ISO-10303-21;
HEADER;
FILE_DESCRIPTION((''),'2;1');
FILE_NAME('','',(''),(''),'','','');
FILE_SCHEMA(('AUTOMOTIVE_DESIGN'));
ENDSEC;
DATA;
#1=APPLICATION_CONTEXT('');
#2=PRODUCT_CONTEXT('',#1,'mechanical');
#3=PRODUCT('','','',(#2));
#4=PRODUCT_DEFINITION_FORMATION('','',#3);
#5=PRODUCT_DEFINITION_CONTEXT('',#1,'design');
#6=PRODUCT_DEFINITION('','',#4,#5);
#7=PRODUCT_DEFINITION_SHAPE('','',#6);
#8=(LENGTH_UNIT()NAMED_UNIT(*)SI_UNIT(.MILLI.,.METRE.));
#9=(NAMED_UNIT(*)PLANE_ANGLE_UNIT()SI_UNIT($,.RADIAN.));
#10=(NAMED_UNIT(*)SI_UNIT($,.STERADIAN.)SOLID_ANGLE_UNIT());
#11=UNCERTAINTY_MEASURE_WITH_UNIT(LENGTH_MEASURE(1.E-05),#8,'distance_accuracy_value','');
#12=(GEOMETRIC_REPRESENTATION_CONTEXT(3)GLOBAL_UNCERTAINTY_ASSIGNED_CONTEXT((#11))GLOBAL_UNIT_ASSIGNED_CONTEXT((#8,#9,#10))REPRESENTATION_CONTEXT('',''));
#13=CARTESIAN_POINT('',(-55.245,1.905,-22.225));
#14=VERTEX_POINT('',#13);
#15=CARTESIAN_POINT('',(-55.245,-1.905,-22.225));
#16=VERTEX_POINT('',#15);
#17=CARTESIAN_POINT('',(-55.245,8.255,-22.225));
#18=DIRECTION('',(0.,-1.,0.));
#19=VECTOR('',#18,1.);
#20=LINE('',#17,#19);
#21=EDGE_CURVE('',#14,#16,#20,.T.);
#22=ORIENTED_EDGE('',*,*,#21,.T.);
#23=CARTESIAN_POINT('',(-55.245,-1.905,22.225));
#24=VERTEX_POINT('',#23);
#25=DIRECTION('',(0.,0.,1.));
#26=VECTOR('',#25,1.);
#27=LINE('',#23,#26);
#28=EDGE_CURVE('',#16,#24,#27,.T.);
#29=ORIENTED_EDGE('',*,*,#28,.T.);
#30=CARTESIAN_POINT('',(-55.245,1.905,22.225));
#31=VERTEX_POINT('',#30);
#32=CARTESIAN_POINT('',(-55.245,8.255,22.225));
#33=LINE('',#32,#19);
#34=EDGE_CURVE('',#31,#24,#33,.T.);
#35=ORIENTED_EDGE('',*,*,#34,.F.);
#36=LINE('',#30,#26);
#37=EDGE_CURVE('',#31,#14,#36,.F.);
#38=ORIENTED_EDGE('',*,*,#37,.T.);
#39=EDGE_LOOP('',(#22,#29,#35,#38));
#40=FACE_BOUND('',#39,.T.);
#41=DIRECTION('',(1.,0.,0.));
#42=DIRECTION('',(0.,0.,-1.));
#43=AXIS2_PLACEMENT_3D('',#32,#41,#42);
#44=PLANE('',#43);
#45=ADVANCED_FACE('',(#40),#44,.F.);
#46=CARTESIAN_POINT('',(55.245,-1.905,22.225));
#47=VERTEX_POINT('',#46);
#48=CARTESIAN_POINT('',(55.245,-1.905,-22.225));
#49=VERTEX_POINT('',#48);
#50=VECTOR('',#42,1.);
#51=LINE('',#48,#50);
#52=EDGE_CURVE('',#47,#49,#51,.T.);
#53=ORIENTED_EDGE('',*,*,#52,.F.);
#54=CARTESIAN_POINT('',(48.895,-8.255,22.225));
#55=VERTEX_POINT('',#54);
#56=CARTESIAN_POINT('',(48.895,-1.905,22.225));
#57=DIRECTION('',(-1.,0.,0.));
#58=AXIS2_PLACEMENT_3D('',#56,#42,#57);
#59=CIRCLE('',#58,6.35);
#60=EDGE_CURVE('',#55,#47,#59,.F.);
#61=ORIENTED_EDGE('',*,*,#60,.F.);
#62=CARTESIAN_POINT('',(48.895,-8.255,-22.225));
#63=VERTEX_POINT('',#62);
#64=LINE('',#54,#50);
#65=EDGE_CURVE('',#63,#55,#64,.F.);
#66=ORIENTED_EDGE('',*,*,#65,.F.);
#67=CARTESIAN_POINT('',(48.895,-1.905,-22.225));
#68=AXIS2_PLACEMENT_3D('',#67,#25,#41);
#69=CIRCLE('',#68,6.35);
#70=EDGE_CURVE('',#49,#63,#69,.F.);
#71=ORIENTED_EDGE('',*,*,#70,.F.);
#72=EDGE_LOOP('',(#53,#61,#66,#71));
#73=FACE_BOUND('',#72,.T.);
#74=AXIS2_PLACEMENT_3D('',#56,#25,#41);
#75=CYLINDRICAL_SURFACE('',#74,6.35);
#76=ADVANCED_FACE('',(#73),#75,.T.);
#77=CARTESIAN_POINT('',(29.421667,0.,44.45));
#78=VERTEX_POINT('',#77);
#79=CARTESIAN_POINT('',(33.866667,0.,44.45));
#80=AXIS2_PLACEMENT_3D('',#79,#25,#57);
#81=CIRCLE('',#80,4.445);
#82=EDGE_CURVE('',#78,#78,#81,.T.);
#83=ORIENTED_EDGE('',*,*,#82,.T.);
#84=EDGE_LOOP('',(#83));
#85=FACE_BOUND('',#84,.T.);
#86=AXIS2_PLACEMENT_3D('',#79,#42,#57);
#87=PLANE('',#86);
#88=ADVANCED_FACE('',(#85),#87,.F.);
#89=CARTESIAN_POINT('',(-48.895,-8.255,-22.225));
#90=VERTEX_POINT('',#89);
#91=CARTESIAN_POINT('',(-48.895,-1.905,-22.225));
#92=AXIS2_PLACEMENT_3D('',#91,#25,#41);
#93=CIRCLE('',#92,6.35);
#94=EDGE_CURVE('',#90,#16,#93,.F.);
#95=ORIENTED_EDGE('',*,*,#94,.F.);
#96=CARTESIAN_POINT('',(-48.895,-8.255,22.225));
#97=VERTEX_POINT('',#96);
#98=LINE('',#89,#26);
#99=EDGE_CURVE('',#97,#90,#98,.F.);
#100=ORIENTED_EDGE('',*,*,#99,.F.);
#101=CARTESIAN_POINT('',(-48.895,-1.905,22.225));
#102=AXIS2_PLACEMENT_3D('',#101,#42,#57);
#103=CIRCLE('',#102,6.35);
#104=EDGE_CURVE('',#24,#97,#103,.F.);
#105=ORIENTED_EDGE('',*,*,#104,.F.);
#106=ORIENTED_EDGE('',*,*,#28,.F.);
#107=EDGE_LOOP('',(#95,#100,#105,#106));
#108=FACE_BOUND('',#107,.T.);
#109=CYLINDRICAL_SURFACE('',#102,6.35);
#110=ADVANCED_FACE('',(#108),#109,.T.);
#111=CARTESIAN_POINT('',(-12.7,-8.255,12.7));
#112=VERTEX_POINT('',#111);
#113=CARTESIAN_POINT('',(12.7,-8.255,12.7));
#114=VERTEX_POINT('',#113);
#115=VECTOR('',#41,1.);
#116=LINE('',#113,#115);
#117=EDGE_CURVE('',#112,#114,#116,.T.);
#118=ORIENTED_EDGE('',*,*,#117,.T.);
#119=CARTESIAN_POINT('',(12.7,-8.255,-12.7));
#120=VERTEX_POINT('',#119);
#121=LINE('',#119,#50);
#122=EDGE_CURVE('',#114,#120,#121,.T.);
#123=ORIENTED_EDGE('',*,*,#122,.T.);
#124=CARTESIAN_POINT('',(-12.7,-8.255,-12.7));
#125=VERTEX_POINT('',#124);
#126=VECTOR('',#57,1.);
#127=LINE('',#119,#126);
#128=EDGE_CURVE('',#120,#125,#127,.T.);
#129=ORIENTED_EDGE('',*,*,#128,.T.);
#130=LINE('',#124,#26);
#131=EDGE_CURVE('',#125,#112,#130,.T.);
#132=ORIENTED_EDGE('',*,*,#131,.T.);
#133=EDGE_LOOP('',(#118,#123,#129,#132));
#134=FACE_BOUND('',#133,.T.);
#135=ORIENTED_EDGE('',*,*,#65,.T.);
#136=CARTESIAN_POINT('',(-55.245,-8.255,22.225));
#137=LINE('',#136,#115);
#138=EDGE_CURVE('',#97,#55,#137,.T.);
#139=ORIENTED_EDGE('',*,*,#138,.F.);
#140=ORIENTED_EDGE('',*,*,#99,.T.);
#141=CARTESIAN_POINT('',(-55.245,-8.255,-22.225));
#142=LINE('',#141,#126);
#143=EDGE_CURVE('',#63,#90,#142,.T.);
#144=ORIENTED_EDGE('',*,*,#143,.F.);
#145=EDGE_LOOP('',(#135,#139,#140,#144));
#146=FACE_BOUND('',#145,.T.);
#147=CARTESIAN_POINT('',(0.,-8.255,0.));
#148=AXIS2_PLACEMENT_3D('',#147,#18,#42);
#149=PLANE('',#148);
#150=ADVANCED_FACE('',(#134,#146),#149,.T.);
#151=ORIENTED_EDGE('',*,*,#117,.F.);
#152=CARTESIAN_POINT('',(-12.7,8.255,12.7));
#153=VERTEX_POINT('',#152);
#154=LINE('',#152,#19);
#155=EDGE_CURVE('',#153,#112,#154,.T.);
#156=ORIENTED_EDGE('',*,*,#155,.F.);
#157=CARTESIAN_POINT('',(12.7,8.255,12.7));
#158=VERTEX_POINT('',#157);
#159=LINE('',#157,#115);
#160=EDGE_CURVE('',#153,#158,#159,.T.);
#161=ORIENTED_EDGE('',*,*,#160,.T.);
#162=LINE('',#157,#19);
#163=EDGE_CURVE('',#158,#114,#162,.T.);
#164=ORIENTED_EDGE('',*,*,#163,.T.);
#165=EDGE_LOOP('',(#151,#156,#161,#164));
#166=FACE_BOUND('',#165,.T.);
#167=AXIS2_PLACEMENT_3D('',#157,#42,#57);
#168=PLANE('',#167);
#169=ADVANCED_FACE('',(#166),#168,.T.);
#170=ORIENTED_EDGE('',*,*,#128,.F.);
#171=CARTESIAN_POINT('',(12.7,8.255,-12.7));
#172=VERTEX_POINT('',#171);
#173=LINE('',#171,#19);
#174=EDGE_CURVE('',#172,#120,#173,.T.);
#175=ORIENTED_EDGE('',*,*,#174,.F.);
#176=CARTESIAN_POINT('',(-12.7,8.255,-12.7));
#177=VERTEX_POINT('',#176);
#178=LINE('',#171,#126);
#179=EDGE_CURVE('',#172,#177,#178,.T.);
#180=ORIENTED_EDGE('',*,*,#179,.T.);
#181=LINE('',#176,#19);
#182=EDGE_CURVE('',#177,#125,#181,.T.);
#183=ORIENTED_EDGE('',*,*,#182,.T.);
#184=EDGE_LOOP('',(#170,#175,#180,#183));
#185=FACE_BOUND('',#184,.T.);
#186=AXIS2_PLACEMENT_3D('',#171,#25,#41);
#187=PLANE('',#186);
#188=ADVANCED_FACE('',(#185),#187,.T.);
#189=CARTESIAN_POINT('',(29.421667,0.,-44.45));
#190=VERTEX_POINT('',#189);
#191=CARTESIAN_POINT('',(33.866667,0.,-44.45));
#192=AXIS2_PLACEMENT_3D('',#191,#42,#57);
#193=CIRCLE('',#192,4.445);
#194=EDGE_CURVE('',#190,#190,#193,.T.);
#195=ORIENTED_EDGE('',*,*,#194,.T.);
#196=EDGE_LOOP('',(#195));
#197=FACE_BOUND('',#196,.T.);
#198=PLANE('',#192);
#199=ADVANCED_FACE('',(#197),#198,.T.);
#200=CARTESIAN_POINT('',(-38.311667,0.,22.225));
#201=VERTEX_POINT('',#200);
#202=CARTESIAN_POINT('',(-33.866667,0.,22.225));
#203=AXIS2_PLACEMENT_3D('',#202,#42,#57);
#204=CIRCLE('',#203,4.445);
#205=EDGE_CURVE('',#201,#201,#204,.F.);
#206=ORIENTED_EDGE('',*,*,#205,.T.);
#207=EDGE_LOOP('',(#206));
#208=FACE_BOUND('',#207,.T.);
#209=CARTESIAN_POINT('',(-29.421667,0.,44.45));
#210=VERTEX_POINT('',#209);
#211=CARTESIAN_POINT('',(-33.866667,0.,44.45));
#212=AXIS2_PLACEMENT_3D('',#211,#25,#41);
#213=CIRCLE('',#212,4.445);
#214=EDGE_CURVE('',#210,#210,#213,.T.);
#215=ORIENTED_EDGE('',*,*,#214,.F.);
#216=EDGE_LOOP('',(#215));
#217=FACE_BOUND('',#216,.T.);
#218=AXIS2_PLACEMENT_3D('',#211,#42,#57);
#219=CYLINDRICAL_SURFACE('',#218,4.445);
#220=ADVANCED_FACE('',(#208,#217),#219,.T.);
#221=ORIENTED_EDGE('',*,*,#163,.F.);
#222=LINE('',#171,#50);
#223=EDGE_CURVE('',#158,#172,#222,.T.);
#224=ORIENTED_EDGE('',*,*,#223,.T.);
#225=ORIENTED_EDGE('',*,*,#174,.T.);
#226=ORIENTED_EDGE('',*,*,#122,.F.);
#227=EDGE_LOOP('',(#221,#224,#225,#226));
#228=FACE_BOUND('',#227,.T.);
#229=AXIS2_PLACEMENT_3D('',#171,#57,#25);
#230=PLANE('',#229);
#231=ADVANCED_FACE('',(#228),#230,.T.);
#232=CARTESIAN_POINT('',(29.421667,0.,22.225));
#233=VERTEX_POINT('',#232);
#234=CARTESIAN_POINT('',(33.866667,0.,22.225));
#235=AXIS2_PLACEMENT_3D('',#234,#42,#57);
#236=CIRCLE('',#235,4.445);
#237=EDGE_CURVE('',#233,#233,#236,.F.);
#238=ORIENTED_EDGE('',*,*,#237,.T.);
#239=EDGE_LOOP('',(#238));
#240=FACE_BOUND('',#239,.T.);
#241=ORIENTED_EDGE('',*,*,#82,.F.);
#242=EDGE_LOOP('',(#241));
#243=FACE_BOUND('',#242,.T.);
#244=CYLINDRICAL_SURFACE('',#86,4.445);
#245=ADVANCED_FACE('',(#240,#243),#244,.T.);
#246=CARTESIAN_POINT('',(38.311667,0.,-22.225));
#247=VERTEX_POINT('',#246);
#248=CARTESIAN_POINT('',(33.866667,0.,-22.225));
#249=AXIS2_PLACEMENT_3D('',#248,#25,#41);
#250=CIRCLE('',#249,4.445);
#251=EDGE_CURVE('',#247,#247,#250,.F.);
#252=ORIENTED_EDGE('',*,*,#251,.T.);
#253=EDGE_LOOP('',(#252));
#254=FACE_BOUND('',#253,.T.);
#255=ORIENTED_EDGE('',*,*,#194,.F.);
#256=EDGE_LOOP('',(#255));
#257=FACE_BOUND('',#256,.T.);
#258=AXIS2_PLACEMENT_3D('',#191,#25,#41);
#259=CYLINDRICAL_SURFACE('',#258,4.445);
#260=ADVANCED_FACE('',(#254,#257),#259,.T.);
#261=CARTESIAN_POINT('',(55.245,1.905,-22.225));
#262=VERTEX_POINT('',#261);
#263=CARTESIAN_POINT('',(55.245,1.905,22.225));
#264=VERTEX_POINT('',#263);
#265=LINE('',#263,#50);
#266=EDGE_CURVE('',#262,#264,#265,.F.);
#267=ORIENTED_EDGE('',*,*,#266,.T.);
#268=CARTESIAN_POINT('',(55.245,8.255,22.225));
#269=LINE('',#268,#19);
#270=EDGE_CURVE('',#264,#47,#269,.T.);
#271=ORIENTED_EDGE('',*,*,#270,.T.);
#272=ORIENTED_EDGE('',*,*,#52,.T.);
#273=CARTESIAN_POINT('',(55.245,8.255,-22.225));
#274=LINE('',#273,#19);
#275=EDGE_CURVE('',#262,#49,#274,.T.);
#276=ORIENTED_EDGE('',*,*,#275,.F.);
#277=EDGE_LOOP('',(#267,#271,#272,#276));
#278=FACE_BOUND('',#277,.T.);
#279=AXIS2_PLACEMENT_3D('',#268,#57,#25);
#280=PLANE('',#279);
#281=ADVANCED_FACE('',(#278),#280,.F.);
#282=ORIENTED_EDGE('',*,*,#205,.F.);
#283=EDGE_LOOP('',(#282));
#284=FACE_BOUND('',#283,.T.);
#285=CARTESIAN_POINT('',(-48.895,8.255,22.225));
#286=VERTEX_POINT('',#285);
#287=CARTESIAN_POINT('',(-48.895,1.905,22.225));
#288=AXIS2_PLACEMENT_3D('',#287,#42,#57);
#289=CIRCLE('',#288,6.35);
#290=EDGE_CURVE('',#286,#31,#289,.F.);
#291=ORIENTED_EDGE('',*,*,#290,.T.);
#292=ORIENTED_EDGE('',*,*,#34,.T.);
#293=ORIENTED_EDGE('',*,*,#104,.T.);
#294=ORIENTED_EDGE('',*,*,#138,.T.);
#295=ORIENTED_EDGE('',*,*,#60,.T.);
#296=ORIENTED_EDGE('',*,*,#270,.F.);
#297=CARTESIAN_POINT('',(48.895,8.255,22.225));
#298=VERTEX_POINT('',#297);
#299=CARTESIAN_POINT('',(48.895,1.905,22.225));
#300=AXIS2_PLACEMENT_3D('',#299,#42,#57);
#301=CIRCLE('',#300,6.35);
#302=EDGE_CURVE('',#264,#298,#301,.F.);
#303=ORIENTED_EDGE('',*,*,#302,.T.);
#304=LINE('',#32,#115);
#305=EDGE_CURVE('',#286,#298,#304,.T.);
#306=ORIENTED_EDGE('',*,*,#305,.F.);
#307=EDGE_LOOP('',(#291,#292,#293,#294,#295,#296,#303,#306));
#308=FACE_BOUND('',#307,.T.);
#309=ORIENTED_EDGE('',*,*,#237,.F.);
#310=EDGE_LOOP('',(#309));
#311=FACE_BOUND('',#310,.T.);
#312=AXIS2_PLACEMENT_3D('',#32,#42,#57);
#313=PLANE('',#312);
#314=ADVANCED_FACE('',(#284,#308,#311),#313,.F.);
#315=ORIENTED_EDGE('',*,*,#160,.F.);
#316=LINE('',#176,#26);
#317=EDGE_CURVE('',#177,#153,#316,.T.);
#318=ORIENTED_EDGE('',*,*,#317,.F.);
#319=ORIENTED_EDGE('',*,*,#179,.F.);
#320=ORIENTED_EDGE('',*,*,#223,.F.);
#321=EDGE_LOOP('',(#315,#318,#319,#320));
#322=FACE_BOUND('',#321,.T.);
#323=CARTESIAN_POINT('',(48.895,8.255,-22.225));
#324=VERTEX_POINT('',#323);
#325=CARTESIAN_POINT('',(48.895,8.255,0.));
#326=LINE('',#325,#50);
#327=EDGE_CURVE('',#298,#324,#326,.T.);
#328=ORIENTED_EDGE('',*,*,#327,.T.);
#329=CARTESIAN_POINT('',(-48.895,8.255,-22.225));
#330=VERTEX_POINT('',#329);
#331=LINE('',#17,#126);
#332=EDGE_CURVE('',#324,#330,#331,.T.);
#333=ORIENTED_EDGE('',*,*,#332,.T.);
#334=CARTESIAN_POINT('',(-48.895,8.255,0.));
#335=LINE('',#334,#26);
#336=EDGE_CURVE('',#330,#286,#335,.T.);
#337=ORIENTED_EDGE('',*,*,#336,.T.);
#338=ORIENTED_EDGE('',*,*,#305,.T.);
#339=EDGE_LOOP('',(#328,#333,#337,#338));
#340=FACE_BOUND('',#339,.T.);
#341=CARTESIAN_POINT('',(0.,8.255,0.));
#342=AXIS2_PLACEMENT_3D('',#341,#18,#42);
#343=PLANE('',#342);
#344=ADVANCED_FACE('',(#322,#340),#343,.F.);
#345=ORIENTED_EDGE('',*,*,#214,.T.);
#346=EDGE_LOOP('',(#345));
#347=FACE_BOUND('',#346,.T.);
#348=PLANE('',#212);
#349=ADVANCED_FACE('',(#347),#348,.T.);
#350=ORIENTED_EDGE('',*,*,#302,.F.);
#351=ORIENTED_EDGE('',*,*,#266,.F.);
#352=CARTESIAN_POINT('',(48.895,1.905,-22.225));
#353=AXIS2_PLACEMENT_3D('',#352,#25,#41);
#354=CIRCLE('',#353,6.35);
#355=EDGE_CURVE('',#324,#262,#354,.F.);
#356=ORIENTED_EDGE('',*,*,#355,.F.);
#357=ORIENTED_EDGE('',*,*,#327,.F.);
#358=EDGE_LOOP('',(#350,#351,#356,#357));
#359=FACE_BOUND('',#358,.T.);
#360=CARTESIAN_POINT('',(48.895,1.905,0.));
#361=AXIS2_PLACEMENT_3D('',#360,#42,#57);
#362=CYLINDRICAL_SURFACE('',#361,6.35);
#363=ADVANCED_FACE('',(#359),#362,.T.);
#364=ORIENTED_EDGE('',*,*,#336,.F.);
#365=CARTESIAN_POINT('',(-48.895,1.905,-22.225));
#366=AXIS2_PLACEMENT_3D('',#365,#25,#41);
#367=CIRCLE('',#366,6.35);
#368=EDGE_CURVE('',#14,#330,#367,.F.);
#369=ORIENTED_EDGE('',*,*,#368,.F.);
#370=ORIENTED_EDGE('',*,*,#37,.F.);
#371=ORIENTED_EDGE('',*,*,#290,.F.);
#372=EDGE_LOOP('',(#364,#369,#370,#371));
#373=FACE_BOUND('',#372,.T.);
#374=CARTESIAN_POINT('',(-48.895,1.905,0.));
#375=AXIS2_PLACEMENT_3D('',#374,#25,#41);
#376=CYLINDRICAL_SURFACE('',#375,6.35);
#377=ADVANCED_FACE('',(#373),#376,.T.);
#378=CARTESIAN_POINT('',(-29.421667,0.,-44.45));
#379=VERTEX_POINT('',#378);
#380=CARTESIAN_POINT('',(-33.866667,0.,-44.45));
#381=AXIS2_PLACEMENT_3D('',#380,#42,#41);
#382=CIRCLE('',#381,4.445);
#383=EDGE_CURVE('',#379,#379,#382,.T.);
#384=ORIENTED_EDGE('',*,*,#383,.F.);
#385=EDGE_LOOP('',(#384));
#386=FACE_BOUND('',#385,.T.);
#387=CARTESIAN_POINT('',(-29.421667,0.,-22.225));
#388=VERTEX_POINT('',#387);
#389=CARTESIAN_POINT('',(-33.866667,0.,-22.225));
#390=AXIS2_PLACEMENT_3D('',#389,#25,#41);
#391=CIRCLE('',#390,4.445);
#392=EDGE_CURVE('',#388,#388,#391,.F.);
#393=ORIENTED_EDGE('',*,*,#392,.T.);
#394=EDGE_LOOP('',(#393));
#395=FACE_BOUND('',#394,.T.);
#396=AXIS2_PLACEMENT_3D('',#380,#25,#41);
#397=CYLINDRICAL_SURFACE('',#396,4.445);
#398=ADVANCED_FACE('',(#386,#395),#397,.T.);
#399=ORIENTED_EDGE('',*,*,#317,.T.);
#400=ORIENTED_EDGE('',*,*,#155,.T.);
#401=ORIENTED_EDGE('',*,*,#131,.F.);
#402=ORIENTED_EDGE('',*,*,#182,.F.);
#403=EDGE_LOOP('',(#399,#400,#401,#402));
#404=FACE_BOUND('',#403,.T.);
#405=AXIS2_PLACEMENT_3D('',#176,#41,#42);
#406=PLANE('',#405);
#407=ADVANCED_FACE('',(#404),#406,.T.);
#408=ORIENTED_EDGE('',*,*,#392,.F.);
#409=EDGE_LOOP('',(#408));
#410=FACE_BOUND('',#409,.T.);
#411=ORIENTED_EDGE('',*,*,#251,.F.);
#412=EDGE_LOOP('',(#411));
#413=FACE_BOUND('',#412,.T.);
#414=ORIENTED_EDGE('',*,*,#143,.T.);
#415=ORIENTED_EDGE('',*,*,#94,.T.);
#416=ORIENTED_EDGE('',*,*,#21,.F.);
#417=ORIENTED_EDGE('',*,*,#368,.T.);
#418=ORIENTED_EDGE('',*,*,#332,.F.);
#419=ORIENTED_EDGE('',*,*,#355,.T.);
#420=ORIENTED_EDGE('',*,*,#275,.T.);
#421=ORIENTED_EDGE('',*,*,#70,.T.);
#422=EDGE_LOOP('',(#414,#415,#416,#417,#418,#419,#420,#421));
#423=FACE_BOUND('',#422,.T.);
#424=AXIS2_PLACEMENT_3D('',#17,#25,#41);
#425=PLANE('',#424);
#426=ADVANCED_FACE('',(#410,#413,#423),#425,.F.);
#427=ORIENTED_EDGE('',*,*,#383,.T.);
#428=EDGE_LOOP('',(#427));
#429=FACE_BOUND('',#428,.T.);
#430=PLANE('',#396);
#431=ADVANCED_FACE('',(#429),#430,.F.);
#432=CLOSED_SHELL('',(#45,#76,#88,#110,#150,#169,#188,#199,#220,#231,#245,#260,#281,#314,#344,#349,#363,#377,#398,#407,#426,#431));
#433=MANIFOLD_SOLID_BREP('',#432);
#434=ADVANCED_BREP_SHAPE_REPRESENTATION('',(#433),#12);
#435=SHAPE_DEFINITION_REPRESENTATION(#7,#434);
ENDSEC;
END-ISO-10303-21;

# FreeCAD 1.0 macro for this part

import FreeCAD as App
import Part
import Sketcher
Q = App.Units.Quantity


def edges_at(feature, points):
    """Names of the edges that pass closest to the given points."""
    edges = feature.Shape.Edges
    near = lambda p: min(range(len(edges)), key=lambda i: edges[i].distToShape(Part.Vertex(*p))[0])
    return sorted({f"Edge{near(p) + 1}" for p in points})


def add_polygon(sketch, points):
    """Adds a closed chain of lines whose ends are joined by coincident constraints."""
    first, n = sketch.GeometryCount, len(points)
    for a, b in zip(points, points[1:] + points[:1]):
        sketch.addGeometry(Part.LineSegment(App.Vector(*a, 0), App.Vector(*b, 0)), False)
    for i in range(n):
        sketch.addConstraint(Sketcher.Constraint("Coincident", first + i, 2, first + (i + 1) % n, 1))

doc = App.newDocument("Part")
params = doc.addObject("Spreadsheet::Sheet", "Params")
for row, (alias, value) in enumerate([
    ("sketch1_width", "1 in"),
    ("sketch1_width2", "4.35 in"),
    ("sketch1_height", "1.75 in"),
    ("pad1_length", "0.65 in"),
    ("fillet_radius", "0.25 in"),
    ("sketch2_diameter", "0.35 in"),
    ("pad2_length", "0.875 in"),
    ("sketch3_diameter", "0.35 in"),
    ("pad3_length", "0.875 in"),
], start=1):
    params.set(f"A{row}", alias)
    params.set(f"B{row}", "=" + value)
    params.setAlias(f"B{row}", alias)

body = doc.addObject("PartDesign::Body", "Body")

# Sketch on XZ plane
sketch1 = doc.addObject("Sketcher::SketchObject", "Sketch")
body.addObject(sketch1)
sketch1.AttachmentSupport = (doc.XZ_Plane, [""])
sketch1.MapMode = "FlatFace"
add_polygon(sketch1, [(-55, -22), (-55, 22), (55, 22), (55, -22)])  # lines 0-3
add_polygon(sketch1, [(13, 13), (-13, 13), (-13, -13), (13, -13)])  # lines 4-7
sketch1.addConstraint(Sketcher.Constraint("Vertical", 0))
sketch1.addConstraint(Sketcher.Constraint("Horizontal", 1))
sketch1.addConstraint(Sketcher.Constraint("Vertical", 2))
sketch1.addConstraint(Sketcher.Constraint("Horizontal", 3))
sketch1.addConstraint(Sketcher.Constraint("Horizontal", 4))
sketch1.addConstraint(Sketcher.Constraint("Vertical", 5))
sketch1.addConstraint(Sketcher.Constraint("Horizontal", 6))
sketch1.addConstraint(Sketcher.Constraint("Vertical", 7))
sketch1.addConstraint(Sketcher.Constraint("Symmetric", 0, 2, 2, 2, -1, 1))
sketch1.addConstraint(Sketcher.Constraint("Symmetric", 4, 2, 6, 2, -1, 1))
sketch1.addConstraint(Sketcher.Constraint("Equal", 6, 5))
sketch1.addConstraint(Sketcher.Constraint("DistanceX", 4, 2, 4, 1, Q("1 in")))
sketch1.addConstraint(Sketcher.Constraint("DistanceX", 1, 1, 1, 2, Q("4.35 in")))
sketch1.addConstraint(Sketcher.Constraint("DistanceY", 0, 1, 0, 2, Q("1.75 in")))
sketch1.setExpression("Constraints[19]", "Params.sketch1_width")
sketch1.setExpression("Constraints[20]", "Params.sketch1_width2")
sketch1.setExpression("Constraints[21]", "Params.sketch1_height")
pad1 = doc.addObject("PartDesign::Pad", "Pad")
body.addObject(pad1)
pad1.Profile = sketch1
pad1.setExpression("Length", "Params.pad1_length")
pad1.Midplane = True
doc.recompute()

fillet = doc.addObject("PartDesign::Fillet", "Fillet")
body.addObject(fillet)
fillet.Base = (pad1, edges_at(pad1, [
    (-55.245, 8.255, 0),
    (55.245, 8.255, 0),
    (-55.245, -8.255, 0),
    (55.245, -8.255, 0),
]))
fillet.setExpression("Radius", "Params.fillet_radius")

# Sketch on XY plane
sketch2 = doc.addObject("Sketcher::SketchObject", "Sketch001")
body.addObject(sketch2)
sketch2.AttachmentSupport = (doc.XY_Plane, [""])
sketch2.MapMode = "FlatFace"
sketch2.AttachmentOffset = App.Placement(App.Vector(0, 0, 0.875 * 25.4), App.Rotation())
sketch2.addGeometry(Part.Circle(App.Vector(-33.9, 0, 0), App.Vector(0, 0, 1), 4.4), False)
sketch2.addGeometry(Part.Circle(App.Vector(33.9, 0, 0), App.Vector(0, 0, 1), 4.4), False)
sketch2.addConstraint(Sketcher.Constraint("Equal", 0, 1))
sketch2.addConstraint(Sketcher.Constraint("Symmetric", 0, 3, 1, 3, -1, 1))
sketch2.addConstraint(Sketcher.Constraint("PointOnObject", 0, 3, -1))
sketch2.addConstraint(Sketcher.Constraint("Diameter", 0, Q("0.35 in")))
sketch2.addConstraint(Sketcher.Constraint("DistanceX", 0, 3, -1, 1, 33.866667))
sketch2.setExpression("Constraints[3]", "Params.sketch2_diameter")
pad2 = doc.addObject("PartDesign::Pad", "Pad001")
body.addObject(pad2)
pad2.Profile = sketch2
pad2.setExpression("Length", "Params.pad2_length")

# Sketch on XY plane
sketch3 = doc.addObject("Sketcher::SketchObject", "Sketch002")
body.addObject(sketch3)
sketch3.AttachmentSupport = (doc.XY_Plane, [""])
sketch3.MapMode = "FlatFace"
sketch3.AttachmentOffset = App.Placement(App.Vector(0, 0, -1.75 * 25.4), App.Rotation())
sketch3.addGeometry(Part.Circle(App.Vector(33.9, 0, 0), App.Vector(0, 0, 1), 4.4), False)
sketch3.addGeometry(Part.Circle(App.Vector(-33.9, 0, 0), App.Vector(0, 0, 1), 4.4), False)
sketch3.addConstraint(Sketcher.Constraint("Equal", 0, 1))
sketch3.addConstraint(Sketcher.Constraint("Symmetric", 0, 3, 1, 3, -1, 1))
sketch3.addConstraint(Sketcher.Constraint("PointOnObject", 0, 3, -1))
sketch3.addConstraint(Sketcher.Constraint("Diameter", 0, Q("0.35 in")))
sketch3.addConstraint(Sketcher.Constraint("DistanceX", -1, 1, 0, 3, 33.866667))
sketch3.setExpression("Constraints[3]", "Params.sketch3_diameter")
pad3 = doc.addObject("PartDesign::Pad", "Pad002")
body.addObject(pad3)
pad3.Profile = sketch3
pad3.setExpression("Length", "Params.pad3_length")

doc.recompute()
